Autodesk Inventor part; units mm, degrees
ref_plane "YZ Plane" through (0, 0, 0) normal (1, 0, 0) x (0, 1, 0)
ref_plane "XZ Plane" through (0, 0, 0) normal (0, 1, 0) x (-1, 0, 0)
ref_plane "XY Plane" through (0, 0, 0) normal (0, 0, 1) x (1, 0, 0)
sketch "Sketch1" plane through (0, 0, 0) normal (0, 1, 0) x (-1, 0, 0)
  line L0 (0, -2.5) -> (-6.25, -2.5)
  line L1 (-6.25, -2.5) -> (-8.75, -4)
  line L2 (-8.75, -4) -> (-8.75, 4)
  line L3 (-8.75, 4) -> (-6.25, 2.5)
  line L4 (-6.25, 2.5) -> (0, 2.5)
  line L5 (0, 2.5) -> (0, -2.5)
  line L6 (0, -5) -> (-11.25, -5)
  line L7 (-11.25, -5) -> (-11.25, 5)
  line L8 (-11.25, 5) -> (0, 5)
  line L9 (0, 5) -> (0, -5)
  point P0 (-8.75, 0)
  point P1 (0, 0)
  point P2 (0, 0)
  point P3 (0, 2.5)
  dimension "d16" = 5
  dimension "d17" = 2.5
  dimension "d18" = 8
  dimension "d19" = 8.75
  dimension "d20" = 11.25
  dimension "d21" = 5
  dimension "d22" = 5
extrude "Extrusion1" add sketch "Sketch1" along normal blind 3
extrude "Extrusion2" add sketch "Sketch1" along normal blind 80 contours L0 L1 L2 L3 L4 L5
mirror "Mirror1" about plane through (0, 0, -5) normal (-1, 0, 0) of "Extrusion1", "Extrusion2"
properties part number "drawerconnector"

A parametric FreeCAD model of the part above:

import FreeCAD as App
import Part
import Sketcher
Q = App.Units.Quantity


def add_polygon(sketch, points):
    """Adds a closed chain of lines whose ends are joined by coincident constraints."""
    first, n = sketch.GeometryCount, len(points)
    for a, b in zip(points, points[1:] + points[:1]):
        sketch.addGeometry(Part.LineSegment(App.Vector(*a, 0), App.Vector(*b, 0)), False)
    for i in range(n):
        sketch.addConstraint(Sketcher.Constraint("Coincident", first + i, 2, first + (i + 1) % n, 1))

doc = App.newDocument("Part")
body = doc.addObject("PartDesign::Body", "Body")

# Sketch on XZ plane
sketch1 = body.newObject("Sketcher::SketchObject", "Sketch")
sketch1.AttachmentSupport = (doc.getObject("XZ_Plane"), [""])
sketch1.MapMode = "FlatFace"
add_polygon(sketch1, [(0, -5), (0, 5), (11.25, 5), (11.25, -5)])  # lines 0-3
sketch1.addConstraint(Sketcher.Constraint("Vertical", 0))
sketch1.addConstraint(Sketcher.Constraint("Horizontal", 1))
sketch1.addConstraint(Sketcher.Constraint("Vertical", 2))
sketch1.addConstraint(Sketcher.Constraint("Horizontal", 3))
sketch1.addConstraint(Sketcher.Constraint("Symmetric", 0, 2, 3, 2, -1, 1))
sketch1.addConstraint(Sketcher.Constraint("DistanceY", -1, 1, 0, 2, Q("5 mm")))
sketch1.addConstraint(Sketcher.Constraint("DistanceX", 1, 1, 1, 2, Q("11.25 mm")))
pad1 = body.newObject("PartDesign::Pad", "Pad")
pad1.Profile = sketch1
pad1.Length = 3
pad1.Reversed = True

# Sketch on XZ plane
sketch2 = body.newObject("Sketcher::SketchObject", "Sketch001")
sketch2.AttachmentSupport = (doc.getObject("XZ_Plane"), [""])
sketch2.MapMode = "FlatFace"
add_polygon(sketch2, [(6.25, -2.5), (0, -2.5), (0, 2.5), (6.25, 2.5), (8.75, 4), (8.75, -4)])  # lines 0-5
sketch2.addConstraint(Sketcher.Constraint("Horizontal", 0))
sketch2.addConstraint(Sketcher.Constraint("Vertical", 1))
sketch2.addConstraint(Sketcher.Constraint("Horizontal", 2))
sketch2.addConstraint(Sketcher.Constraint("Vertical", 4))
sketch2.addConstraint(Sketcher.Constraint("Symmetric", 0, 2, 1, 2, -1, 1))
sketch2.addConstraint(Sketcher.Constraint("Vertical", 2, 2, 5, 2))
sketch2.addConstraint(Sketcher.Constraint("Equal", 3, 5))
sketch2.addConstraint(Sketcher.Constraint("DistanceY", 1, 1, 1, 2, Q("5 mm")))
sketch2.addConstraint(Sketcher.Constraint("DistanceY", 4, 2, 4, 1, Q("8 mm")))
sketch2.addConstraint(Sketcher.Constraint("DistanceX", 2, 2, 3, 2, Q("2.5 mm")))
sketch2.addConstraint(Sketcher.Constraint("DistanceX", -1, 1, 3, 2, Q("8.75 mm")))
pad2 = body.newObject("PartDesign::Pad", "Pad001")
pad2.Profile = sketch2
pad2.Length = 80
pad2.Reversed = True
doc.recompute()

mirrored = body.newObject("PartDesign::Mirrored", "Mirrored")
mirrored.Originals = [pad1, pad2]
mirrored.MirrorPlane = (doc.getObject("YZ_Plane"), [""])
body.Tip = mirrored

doc.recompute()
